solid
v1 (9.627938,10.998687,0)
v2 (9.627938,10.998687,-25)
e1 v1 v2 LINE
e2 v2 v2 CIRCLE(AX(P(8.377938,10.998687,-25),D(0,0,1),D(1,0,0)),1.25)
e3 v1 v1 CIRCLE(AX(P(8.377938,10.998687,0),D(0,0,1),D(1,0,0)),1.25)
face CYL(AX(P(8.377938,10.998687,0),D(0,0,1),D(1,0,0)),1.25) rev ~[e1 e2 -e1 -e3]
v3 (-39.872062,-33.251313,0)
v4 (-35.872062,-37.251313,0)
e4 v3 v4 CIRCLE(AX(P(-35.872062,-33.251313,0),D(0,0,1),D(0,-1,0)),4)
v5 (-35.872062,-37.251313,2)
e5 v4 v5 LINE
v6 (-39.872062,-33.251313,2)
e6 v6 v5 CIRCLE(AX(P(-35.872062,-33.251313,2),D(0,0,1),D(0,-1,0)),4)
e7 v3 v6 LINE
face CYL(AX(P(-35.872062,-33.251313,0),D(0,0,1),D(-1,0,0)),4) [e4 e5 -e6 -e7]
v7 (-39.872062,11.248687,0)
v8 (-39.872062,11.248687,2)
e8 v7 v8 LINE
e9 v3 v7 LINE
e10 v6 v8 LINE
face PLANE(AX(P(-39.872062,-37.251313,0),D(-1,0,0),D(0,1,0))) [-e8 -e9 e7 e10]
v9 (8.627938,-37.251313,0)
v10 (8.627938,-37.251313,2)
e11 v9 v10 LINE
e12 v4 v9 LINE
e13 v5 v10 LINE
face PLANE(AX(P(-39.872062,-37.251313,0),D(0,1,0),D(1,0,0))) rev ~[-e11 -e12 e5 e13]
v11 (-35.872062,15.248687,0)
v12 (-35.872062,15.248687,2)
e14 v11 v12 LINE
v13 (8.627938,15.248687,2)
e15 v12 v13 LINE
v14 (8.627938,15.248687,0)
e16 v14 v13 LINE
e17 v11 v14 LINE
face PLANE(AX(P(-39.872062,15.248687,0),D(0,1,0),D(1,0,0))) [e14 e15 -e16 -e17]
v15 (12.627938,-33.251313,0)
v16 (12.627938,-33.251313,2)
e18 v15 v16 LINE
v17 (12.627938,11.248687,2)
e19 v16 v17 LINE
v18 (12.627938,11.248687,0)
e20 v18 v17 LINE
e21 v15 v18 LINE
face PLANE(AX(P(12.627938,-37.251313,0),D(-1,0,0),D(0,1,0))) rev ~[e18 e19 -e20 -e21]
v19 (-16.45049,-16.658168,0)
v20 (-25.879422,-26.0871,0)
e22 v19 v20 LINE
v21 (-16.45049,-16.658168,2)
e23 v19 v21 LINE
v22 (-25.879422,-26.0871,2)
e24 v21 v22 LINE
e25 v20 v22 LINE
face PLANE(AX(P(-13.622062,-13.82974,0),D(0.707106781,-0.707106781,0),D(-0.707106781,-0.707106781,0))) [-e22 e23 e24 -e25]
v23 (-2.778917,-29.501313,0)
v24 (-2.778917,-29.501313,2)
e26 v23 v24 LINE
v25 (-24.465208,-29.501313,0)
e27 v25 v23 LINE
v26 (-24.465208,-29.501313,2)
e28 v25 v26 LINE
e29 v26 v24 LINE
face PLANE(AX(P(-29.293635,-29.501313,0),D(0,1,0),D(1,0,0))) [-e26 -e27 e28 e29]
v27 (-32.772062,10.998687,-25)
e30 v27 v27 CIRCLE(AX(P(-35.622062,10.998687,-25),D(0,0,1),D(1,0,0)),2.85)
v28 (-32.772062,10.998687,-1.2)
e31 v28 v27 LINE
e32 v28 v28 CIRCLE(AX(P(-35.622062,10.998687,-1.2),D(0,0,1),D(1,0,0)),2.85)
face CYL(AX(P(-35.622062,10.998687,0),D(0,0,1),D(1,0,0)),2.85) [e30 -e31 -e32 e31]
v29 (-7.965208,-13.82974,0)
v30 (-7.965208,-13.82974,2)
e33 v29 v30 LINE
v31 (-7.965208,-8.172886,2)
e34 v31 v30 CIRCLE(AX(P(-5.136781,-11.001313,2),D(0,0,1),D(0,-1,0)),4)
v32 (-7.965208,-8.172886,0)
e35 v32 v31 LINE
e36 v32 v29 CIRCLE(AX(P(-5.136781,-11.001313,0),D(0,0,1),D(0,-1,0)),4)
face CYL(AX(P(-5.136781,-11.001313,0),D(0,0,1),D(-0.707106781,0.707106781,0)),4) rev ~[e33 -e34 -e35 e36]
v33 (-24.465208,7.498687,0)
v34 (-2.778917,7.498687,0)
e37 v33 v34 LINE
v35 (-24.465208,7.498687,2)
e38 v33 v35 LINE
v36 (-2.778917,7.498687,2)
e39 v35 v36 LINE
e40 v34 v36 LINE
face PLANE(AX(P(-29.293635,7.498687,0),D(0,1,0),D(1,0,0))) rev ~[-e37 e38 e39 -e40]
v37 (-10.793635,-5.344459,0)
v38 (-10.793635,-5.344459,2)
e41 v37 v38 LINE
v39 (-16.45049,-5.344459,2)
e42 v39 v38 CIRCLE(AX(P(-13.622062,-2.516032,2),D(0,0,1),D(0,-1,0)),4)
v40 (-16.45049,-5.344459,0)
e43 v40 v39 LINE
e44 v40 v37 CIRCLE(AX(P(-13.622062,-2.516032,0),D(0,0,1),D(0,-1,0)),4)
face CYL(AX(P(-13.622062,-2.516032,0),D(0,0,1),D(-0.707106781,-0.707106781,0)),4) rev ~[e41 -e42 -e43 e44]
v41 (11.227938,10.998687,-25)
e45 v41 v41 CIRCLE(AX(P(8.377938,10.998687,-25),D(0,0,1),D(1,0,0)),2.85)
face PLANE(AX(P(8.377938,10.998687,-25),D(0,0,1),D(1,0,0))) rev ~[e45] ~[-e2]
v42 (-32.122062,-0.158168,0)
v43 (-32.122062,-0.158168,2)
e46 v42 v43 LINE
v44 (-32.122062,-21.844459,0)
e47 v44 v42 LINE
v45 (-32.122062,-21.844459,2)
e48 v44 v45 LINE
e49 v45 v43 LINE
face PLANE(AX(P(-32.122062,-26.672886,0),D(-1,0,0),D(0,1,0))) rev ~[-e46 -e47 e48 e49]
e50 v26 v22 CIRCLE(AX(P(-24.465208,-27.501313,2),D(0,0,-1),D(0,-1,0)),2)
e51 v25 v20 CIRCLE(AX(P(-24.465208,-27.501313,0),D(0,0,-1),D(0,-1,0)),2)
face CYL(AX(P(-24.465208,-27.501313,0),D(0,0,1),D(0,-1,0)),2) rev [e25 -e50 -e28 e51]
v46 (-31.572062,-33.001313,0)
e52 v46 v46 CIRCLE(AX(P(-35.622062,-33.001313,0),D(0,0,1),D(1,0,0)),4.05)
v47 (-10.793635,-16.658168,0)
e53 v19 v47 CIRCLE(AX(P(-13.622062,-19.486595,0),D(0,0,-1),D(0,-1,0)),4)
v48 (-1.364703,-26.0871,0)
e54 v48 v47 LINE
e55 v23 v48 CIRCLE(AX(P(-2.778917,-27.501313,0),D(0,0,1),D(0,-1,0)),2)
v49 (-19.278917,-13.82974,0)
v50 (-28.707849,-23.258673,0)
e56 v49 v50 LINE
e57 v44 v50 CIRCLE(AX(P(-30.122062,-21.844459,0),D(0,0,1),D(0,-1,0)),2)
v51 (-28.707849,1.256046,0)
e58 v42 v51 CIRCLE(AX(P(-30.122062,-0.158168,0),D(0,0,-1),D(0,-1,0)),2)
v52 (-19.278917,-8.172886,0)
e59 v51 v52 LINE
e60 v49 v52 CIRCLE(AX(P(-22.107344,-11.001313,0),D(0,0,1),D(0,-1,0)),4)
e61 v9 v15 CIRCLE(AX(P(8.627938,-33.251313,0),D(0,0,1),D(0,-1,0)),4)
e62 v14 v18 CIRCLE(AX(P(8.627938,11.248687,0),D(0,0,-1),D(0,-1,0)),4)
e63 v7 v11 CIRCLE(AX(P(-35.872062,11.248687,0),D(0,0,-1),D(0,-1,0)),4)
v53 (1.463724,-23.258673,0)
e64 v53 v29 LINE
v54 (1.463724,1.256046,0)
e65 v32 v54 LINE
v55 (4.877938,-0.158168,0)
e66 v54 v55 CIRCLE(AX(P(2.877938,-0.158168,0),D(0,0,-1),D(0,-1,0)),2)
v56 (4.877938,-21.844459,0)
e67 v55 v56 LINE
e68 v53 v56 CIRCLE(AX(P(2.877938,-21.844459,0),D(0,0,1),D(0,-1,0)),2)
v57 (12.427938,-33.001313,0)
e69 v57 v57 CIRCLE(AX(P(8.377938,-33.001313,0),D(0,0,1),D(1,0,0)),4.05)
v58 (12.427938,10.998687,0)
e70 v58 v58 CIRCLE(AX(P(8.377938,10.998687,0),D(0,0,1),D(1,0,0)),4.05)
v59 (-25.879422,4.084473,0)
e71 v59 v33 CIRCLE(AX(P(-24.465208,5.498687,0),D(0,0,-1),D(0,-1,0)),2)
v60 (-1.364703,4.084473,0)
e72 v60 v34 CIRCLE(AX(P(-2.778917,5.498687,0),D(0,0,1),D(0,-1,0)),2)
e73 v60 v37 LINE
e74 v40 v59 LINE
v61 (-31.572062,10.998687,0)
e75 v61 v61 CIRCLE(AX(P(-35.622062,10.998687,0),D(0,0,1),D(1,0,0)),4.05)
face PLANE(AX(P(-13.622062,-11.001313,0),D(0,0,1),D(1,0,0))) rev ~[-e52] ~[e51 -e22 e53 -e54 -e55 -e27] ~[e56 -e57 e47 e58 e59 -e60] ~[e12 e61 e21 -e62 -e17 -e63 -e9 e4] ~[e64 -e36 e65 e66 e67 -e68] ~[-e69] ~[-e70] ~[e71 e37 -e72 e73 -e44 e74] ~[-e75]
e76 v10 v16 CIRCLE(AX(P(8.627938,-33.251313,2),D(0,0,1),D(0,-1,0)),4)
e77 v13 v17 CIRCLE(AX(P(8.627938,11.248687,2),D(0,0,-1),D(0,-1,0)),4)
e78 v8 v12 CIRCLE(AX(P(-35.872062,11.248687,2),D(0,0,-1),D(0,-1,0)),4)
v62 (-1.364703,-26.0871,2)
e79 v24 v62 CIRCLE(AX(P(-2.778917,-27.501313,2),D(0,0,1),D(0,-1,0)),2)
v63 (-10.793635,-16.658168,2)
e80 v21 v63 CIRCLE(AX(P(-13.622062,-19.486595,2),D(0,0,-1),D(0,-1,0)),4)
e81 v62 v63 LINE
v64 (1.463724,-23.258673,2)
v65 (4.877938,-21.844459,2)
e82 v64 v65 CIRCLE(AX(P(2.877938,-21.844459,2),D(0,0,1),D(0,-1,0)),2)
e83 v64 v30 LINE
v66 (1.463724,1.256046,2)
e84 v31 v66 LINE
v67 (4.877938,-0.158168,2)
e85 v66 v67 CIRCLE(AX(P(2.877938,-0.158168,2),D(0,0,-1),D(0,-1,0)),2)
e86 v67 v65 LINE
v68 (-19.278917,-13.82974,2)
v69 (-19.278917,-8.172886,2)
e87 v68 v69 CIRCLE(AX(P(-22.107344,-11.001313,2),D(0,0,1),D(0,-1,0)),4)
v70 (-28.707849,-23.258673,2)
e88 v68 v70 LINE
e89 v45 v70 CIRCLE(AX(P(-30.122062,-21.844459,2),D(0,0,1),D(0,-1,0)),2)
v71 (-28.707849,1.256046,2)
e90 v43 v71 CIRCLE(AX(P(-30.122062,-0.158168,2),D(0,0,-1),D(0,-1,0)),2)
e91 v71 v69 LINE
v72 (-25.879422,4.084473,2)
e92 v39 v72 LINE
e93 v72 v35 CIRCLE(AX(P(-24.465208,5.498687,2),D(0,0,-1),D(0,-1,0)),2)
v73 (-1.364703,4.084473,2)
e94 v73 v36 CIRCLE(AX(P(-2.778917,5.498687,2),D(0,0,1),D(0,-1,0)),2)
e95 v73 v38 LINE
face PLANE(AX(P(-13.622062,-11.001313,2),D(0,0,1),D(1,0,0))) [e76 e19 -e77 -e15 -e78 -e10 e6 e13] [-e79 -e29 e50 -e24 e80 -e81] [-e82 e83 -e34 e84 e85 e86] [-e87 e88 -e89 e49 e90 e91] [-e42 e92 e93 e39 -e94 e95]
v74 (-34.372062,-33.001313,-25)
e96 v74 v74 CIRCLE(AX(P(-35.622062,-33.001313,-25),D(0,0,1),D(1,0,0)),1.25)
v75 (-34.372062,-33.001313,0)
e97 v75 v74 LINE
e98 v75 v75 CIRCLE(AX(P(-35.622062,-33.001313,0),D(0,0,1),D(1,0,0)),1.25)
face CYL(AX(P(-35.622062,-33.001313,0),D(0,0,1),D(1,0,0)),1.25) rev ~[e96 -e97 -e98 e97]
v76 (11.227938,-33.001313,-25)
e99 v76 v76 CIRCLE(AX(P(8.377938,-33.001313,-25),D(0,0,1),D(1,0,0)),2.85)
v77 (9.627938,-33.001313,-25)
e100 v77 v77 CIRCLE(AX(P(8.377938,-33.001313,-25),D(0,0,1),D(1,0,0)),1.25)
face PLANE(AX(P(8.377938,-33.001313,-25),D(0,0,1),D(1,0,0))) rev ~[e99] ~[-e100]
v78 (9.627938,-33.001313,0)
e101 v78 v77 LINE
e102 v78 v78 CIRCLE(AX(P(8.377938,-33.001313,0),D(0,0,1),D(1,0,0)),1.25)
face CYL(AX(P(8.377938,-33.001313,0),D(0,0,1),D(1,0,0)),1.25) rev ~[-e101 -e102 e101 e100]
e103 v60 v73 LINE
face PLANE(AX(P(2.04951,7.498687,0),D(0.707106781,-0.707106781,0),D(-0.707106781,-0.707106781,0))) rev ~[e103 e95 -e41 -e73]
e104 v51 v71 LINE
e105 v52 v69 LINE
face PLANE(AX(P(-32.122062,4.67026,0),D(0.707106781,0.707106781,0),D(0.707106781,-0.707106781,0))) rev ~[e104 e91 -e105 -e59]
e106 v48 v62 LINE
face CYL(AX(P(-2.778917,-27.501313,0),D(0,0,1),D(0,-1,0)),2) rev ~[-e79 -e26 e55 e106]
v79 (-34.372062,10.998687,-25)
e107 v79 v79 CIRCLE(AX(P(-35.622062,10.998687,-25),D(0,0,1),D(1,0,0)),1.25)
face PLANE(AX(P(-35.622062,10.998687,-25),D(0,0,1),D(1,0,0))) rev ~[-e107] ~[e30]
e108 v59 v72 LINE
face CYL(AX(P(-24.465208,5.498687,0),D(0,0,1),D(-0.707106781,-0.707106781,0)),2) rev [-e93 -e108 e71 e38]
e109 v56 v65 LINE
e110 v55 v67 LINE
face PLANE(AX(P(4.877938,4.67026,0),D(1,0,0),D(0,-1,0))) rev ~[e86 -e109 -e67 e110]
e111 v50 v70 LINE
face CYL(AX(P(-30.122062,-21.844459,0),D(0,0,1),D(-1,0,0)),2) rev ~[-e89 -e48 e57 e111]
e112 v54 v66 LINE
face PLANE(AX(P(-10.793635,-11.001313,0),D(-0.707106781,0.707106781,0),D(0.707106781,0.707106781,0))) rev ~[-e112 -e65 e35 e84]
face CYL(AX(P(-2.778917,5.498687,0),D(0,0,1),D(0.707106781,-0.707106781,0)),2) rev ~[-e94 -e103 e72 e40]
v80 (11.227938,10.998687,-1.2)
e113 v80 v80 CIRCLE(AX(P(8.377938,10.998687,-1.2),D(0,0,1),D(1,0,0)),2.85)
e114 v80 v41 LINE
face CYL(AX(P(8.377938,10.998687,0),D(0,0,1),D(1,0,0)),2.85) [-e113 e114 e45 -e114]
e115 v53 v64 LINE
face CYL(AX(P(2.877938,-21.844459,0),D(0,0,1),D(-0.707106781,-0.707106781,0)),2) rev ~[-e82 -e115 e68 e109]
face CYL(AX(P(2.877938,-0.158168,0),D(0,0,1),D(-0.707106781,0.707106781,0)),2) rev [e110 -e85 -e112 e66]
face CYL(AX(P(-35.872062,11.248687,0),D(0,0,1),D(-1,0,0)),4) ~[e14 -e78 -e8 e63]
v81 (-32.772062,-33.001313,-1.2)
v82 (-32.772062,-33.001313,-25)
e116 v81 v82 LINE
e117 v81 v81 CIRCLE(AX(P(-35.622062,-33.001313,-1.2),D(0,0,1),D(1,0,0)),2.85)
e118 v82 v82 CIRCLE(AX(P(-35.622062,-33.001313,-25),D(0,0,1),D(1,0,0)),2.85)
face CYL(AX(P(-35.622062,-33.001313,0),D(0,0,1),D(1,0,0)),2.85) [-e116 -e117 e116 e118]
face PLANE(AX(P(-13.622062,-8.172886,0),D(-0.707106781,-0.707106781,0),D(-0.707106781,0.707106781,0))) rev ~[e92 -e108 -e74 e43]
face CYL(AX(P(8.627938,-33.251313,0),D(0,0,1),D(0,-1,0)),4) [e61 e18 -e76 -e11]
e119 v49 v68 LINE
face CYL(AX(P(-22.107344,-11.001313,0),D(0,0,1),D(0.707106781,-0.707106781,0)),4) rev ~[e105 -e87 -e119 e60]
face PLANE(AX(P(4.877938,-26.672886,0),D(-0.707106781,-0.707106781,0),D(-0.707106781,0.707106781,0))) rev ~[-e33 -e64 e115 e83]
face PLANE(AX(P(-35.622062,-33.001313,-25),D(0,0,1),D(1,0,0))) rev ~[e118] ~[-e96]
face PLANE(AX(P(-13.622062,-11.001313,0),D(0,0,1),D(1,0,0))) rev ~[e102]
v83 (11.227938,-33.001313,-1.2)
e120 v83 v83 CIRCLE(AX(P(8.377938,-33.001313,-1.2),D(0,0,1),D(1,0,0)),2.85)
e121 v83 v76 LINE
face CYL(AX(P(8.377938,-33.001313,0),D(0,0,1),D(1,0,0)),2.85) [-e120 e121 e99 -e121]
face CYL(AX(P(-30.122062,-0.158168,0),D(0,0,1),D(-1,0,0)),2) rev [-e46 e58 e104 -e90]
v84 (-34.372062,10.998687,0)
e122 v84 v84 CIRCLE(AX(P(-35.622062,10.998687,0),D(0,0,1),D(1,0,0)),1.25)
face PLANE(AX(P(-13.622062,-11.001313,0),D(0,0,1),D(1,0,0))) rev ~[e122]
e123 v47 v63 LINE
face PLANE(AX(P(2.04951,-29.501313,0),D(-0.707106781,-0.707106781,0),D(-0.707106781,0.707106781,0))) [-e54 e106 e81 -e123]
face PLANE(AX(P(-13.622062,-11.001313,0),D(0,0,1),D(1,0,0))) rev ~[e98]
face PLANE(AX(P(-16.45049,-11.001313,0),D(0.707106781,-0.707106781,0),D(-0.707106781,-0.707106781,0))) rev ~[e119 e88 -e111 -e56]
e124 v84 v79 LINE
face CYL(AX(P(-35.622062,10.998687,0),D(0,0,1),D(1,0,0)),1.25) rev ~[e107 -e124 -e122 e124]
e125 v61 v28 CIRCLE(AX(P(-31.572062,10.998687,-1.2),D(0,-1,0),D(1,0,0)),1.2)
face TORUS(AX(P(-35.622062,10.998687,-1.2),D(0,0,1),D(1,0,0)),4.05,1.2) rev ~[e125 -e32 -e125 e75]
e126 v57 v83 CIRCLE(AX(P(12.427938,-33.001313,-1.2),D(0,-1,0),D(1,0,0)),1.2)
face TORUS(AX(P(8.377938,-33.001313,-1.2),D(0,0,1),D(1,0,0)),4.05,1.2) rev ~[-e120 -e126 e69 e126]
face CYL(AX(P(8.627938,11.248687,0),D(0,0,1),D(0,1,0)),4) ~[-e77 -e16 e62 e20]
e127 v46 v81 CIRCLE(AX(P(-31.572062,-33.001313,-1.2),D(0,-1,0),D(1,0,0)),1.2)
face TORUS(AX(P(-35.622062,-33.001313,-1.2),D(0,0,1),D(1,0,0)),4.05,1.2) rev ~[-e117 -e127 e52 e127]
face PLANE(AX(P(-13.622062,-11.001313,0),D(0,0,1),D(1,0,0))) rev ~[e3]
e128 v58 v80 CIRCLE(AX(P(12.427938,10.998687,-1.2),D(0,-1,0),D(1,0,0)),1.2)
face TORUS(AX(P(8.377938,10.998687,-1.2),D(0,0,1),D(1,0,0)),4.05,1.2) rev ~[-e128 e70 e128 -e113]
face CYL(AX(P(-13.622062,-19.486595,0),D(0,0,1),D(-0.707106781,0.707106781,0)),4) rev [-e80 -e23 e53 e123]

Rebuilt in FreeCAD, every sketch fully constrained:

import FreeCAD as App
import Part
import Sketcher

V = App.Vector
Q = App.Units.Quantity


def edges_at(feature, points):
    """Names of the edges that pass closest to the given points."""
    edges = feature.Shape.Edges
    near = lambda p: min(range(len(edges)), key=lambda i: edges[i].distToShape(Part.Vertex(*p))[0])
    return sorted({f"Edge{near(p) + 1}" for p in points})


def add_polygon(sketch, points):
    """Adds a closed chain of lines whose ends are joined by coincident constraints."""
    first, n = sketch.GeometryCount, len(points)
    for a, b in zip(points, points[1:] + points[:1]):
        sketch.addGeometry(Part.LineSegment(App.Vector(*a, 0), App.Vector(*b, 0)), False)
    for i in range(n):
        sketch.addConstraint(Sketcher.Constraint("Coincident", first + i, 2, first + (i + 1) % n, 1))

doc = App.newDocument("Part")
body = doc.addObject("PartDesign::Body", "Body")

# Sketch on XY plane
sketch1 = doc.addObject("Sketcher::SketchObject", "Sketch")
body.addObject(sketch1)
sketch1.AttachmentSupport = (doc.XY_Plane, [""])
sketch1.MapMode = "FlatFace"
add_polygon(sketch1, [(-40, 15), (-40, -37), (13, -37), (13, 15)])  # lines 0-3
add_polygon(sketch1, [(2, -30), (-29, -30), (-14, -14)])  # lines 4-6
add_polygon(sketch1, [(-32, -27), (-32, 5), (-16, -11)])  # lines 7-9
add_polygon(sketch1, [(-11, -11), (5, 5), (5, -27)])  # lines 10-12
add_polygon(sketch1, [(-14, -8), (-29, 7), (2, 7)])  # lines 13-15
sketch1.addConstraint(Sketcher.Constraint("Vertical", 0))
sketch1.addConstraint(Sketcher.Constraint("Horizontal", 1))
sketch1.addConstraint(Sketcher.Constraint("Vertical", 2))
sketch1.addConstraint(Sketcher.Constraint("Horizontal", 3))
sketch1.addConstraint(Sketcher.Constraint("Horizontal", 4))
sketch1.addConstraint(Sketcher.Constraint("Vertical", 7))
sketch1.addConstraint(Sketcher.Constraint("Vertical", 11))
sketch1.addConstraint(Sketcher.Constraint("Horizontal", 14))
sketch1.addConstraint(Sketcher.Constraint("Perpendicular", 5, 6))
sketch1.addConstraint(Sketcher.Constraint("Parallel", 6, 8))
sketch1.addConstraint(Sketcher.Constraint("Perpendicular", 8, 9))
sketch1.addConstraint(Sketcher.Constraint("Parallel", 9, 10))
sketch1.addConstraint(Sketcher.Constraint("Perpendicular", 10, 12))
sketch1.addConstraint(Sketcher.Constraint("Parallel", 12, 13))
sketch1.addConstraint(Sketcher.Constraint("Perpendicular", 13, 15))
sketch1.addConstraint(Sketcher.Constraint("Horizontal", 7, 2, 10, 2))
sketch1.addConstraint(Sketcher.Constraint("Horizontal", 9, 2, 11, 2))
sketch1.addConstraint(Sketcher.Constraint("Horizontal", 8, 2, 12, 2))
sketch1.addConstraint(Sketcher.Constraint("Vertical", 4, 2, 13, 2))
sketch1.addConstraint(Sketcher.Constraint("Vertical", 6, 2, 14, 2))
sketch1.addConstraint(Sketcher.Constraint("Equal", 3, 0))
sketch1.addConstraint(Sketcher.Constraint("Equal", 14, 7))
sketch1.addConstraint(Sketcher.Constraint("DistanceX", 1, 1, 1, 2, Q("52.5 mm")))
sketch1.addConstraint(Sketcher.Constraint("DistanceX", 7, 2, 10, 2, Q("37 mm")))
sketch1.addConstraint(Sketcher.Constraint("DistanceX", 7, 2, 5, 2, Q("18.5 mm")))
sketch1.addConstraint(Sketcher.Constraint("DistanceY", 5, 2, 7, 2, Q("18.5 mm")))
sketch1.addConstraint(Sketcher.Constraint("DistanceY", 8, 2, 13, 2, Q("18.5 mm")))
sketch1.addConstraint(Sketcher.Constraint("DistanceY", 0, 2, 4, 2, Q("7.75 mm")))
sketch1.addConstraint(Sketcher.Constraint("DistanceX", 0, 2, 5, 2, Q("26.25 mm")))
sketch1.addConstraint(Sketcher.Constraint("Distance", 5, Q("22.162951 mm")))
sketch1.addConstraint(Sketcher.Constraint("DistanceY", 5, 2, -1, 1, Q("13.82974 mm")))
sketch1.addConstraint(Sketcher.Constraint("DistanceX", -1, 1, 6, 2, Q("2.04951 mm")))
pad1 = doc.addObject("PartDesign::Pad", "Pad")
body.addObject(pad1)
pad1.Profile = sketch1
pad1.Length = 2

# Sketch on XY plane
sketch2 = doc.addObject("Sketcher::SketchObject", "Sketch001")
body.addObject(sketch2)
sketch2.AttachmentSupport = (doc.XY_Plane, [""])
sketch2.MapMode = "FlatFace"
sketch2.addGeometry(Part.Circle(V(-35.6, 11, 0), V(0, 0, 1), 2.9), False)
sketch2.addGeometry(Part.Circle(V(-35.6, 11, 0), V(0, 0, 1), 1.2), False)
sketch2.addGeometry(Part.Circle(V(-35.6, -33, 0), V(0, 0, 1), 2.9), False)
sketch2.addGeometry(Part.Circle(V(-35.6, -33, 0), V(0, 0, 1), 1.2), False)
sketch2.addGeometry(Part.Circle(V(8.4, -33, 0), V(0, 0, 1), 2.9), False)
sketch2.addGeometry(Part.Circle(V(8.4, -33, 0), V(0, 0, 1), 1.2), False)
sketch2.addGeometry(Part.Circle(V(8.4, 11, 0), V(0, 0, 1), 2.9), False)
sketch2.addGeometry(Part.Circle(V(8.4, 11, 0), V(0, 0, 1), 1.2), False)
sketch2.addConstraint(Sketcher.Constraint("Coincident", 1, 3, 0, 3))
sketch2.addConstraint(Sketcher.Constraint("Coincident", 3, 3, 2, 3))
sketch2.addConstraint(Sketcher.Constraint("Coincident", 5, 3, 4, 3))
sketch2.addConstraint(Sketcher.Constraint("Coincident", 7, 3, 6, 3))
sketch2.addConstraint(Sketcher.Constraint("Equal", 0, 2))
sketch2.addConstraint(Sketcher.Constraint("Equal", 1, 3))
sketch2.addConstraint(Sketcher.Constraint("Equal", 2, 4))
sketch2.addConstraint(Sketcher.Constraint("Equal", 3, 5))
sketch2.addConstraint(Sketcher.Constraint("Equal", 4, 6))
sketch2.addConstraint(Sketcher.Constraint("Equal", 5, 7))
sketch2.addConstraint(Sketcher.Constraint("Horizontal", 3, 3, 4, 3))
sketch2.addConstraint(Sketcher.Constraint("Horizontal", 1, 3, 6, 3))
sketch2.addConstraint(Sketcher.Constraint("Vertical", 1, 3, 2, 3))
sketch2.addConstraint(Sketcher.Constraint("Vertical", 5, 3, 6, 3))
sketch2.addConstraint(Sketcher.Constraint("Diameter", 0, Q("5.7 mm")))
sketch2.addConstraint(Sketcher.Constraint("Diameter", 1, Q("2.5 mm")))
sketch2.addConstraint(Sketcher.Constraint("DistanceY", 2, 3, 0, 3, Q("44 mm")))
sketch2.addConstraint(Sketcher.Constraint("DistanceX", 2, 3, 4, 3, Q("44 mm")))
sketch2.addConstraint(Sketcher.Constraint("DistanceX", 0, 3, -1, 1, Q("35.622062 mm")))
sketch2.addConstraint(Sketcher.Constraint("DistanceY", -1, 1, 0, 3, Q("10.998687 mm")))
pad2 = doc.addObject("PartDesign::Pad", "Pad001")
body.addObject(pad2)
pad2.Profile = sketch2
pad2.Length = 25
pad2.Reversed = True
doc.recompute()

fillet = doc.addObject("PartDesign::Fillet", "Fillet")
body.addObject(fillet)
fillet.Base = (pad2, edges_at(pad2, [
    (12.628, -37.251, 1),
    (-39.872, -37.251, 1),
    (-39.872, 15.249, 1),
    (12.628, 15.249, 1),
]))
fillet.Radius = 4
doc.recompute()

fillet2 = doc.addObject("PartDesign::Fillet", "Fillet001")
body.addObject(fillet2)
fillet2.Base = (fillet, edges_at(fillet, [
    (-38.472, 10.999, 0),
    (-38.472, -33.001, 0),
    (5.528, -33.001, 0),
    (5.528, 10.999, 0),
]))
fillet2.Radius = 1.2
doc.recompute()

fillet3 = doc.addObject("PartDesign::Fillet", "Fillet002")
body.addObject(fillet3)
fillet3.Base = (fillet2, edges_at(fillet2, [
    (-29.294, -29.501, 1),
    (2.05, -29.501, 1),
    (2.05, 7.499, 1),
    (-29.294, 7.499, 1),
    (-32.122, 4.67, 1),
    (-32.122, -26.673, 1),
    (4.878, -26.673, 1),
    (4.878, 4.67, 1),
]))
fillet3.Radius = 2
doc.recompute()

fillet4 = doc.addObject("PartDesign::Fillet", "Fillet003")
body.addObject(fillet4)
fillet4.Base = (fillet3, edges_at(fillet3, [
    (-13.622, -13.83, 1),
    (-13.622, -8.173, 1),
    (-16.45, -11.001, 1),
    (-10.794, -11.001, 1),
]))
fillet4.Radius = 4

doc.recompute()
